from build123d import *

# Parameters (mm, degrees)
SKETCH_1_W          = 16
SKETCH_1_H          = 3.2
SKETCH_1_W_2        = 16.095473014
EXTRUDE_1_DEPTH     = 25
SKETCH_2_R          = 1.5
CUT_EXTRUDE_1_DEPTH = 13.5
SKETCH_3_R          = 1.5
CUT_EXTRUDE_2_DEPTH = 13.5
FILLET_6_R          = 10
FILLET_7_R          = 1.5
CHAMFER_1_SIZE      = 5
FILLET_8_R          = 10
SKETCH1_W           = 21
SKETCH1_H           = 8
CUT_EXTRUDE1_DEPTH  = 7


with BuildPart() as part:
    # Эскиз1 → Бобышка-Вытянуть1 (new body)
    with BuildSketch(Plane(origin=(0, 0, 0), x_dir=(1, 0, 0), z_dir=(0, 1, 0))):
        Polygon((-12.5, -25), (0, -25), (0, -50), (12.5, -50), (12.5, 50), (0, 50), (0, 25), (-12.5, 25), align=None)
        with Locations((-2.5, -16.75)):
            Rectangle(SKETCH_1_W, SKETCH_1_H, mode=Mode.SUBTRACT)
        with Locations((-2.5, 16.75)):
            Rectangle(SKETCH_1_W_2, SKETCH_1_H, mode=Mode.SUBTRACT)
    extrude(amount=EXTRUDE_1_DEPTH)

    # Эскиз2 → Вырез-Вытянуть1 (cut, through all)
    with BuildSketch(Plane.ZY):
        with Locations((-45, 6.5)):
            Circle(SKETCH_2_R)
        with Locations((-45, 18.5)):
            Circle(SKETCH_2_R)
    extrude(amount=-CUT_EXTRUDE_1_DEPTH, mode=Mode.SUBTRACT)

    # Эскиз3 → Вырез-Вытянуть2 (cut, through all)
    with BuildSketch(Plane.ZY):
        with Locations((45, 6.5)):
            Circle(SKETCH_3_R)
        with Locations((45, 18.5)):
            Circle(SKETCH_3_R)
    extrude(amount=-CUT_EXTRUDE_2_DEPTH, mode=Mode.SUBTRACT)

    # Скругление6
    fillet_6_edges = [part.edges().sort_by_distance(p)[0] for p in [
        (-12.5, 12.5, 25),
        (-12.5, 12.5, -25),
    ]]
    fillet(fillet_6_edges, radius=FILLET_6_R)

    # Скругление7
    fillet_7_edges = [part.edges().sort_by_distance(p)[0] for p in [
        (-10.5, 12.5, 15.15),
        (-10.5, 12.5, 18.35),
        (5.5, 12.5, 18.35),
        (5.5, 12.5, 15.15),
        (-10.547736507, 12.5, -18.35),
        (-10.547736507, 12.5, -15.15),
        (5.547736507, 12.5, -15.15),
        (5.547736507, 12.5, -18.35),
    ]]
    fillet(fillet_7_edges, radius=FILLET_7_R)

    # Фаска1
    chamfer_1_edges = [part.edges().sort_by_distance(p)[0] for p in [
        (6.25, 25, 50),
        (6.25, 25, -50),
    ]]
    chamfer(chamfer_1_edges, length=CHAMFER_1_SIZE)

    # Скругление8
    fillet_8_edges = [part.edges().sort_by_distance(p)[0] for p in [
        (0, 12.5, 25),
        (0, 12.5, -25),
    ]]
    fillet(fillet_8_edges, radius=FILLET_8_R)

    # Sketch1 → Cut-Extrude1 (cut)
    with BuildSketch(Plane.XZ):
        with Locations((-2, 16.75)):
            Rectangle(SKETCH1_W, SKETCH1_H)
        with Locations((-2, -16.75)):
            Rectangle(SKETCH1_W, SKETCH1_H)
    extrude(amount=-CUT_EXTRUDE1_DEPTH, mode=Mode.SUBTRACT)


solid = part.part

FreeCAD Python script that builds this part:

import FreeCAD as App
import Part
import Sketcher
from FreeCAD import Vector
Q = App.Units.Quantity


def edges_at(feature, points):
    """Names of the edges that pass closest to the given points."""
    edges = feature.Shape.Edges
    near = lambda p: min(range(len(edges)), key=lambda i: edges[i].distToShape(Part.Vertex(*p))[0])
    return sorted({f"Edge{near(p) + 1}" for p in points})

doc = App.newDocument("Part")
params = doc.addObject("Spreadsheet::Sheet", "Params")
for row, (alias, value) in enumerate([
    ("sketch1_width", "16 mm"),
    ("sketch1_height", "25 mm"),
    ("sketch1_height2", "100 mm"),
    ("sketch1_width2", "12.5 mm"),
    ("sketch1_height3", "3.2 mm"),
    ("pad1_length", "25 mm"),
    ("sketch2_diameter", "3 mm"),
    ("sketch3_diameter", "3 mm"),
    ("fillet_radius", "10 mm"),
    ("fillet2_radius", "1.5 mm"),
    ("chamfer_size", "5 mm"),
    ("fillet3_radius", "10 mm"),
    ("sketch4_width", "21 mm"),
    ("sketch4_height", "8 mm"),
    ("pocket3_length", "7 mm"),
], start=1):
    params.set(f"A{row}", alias)
    params.set(f"B{row}", "=" + value)
    params.setAlias(f"B{row}", alias)

body = doc.addObject("PartDesign::Body", "Body")

sketch1 = body.newObject("Sketcher::SketchObject", "Sketch")
sketch1.AttachmentSupport = (doc.getObject("XZ_Plane"), [""])
sketch1.MapMode = "FlatFace"
sketch1.addGeometry([
    Part.LineSegment(Vector(-12.5, 25, 0), Vector(0, 25, 0)),
    Part.LineSegment(Vector(0, 25, 0), Vector(0, 50, 0)),
    Part.LineSegment(Vector(0, 50, 0), Vector(12.5, 50, 0)),
    Part.LineSegment(Vector(12.5, 50, 0), Vector(12.5, -50, 0)),
    Part.LineSegment(Vector(12.5, -50, 0), Vector(0, -50, 0)),
    Part.LineSegment(Vector(0, -50, 0), Vector(0, -25, 0)),
    Part.LineSegment(Vector(0, -25, 0), Vector(-12.5, -25, 0)),
    Part.LineSegment(Vector(-12.5, -25, 0), Vector(-12.5, 25, 0)),
    Part.LineSegment(Vector(5.5, 18.4, 0), Vector(-10.5, 18.4, 0)),
    Part.LineSegment(Vector(-10.5, 18.4, 0), Vector(-10.5, 15.2, 0)),
    Part.LineSegment(Vector(-10.5, 15.2, 0), Vector(5.5, 15.2, 0)),
    Part.LineSegment(Vector(5.5, 15.2, 0), Vector(5.5, 18.4, 0)),
    Part.LineSegment(Vector(5.5, -15.2, 0), Vector(-10.5, -15.2, 0)),
    Part.LineSegment(Vector(-10.5, -15.2, 0), Vector(-10.5, -18.4, 0)),
    Part.LineSegment(Vector(-10.5, -18.4, 0), Vector(5.5, -18.4, 0)),
    Part.LineSegment(Vector(5.5, -18.4, 0), Vector(5.5, -15.2, 0)),
], False)
sketch1.addConstraint([
    Sketcher.Constraint("Coincident", 0, 2, 1, 1),
    Sketcher.Constraint("Coincident", 1, 2, 2, 1),
    Sketcher.Constraint("Coincident", 2, 2, 3, 1),
    Sketcher.Constraint("Coincident", 3, 2, 4, 1),
    Sketcher.Constraint("Coincident", 4, 2, 5, 1),
    Sketcher.Constraint("Coincident", 5, 2, 6, 1),
    Sketcher.Constraint("Coincident", 6, 2, 7, 1),
    Sketcher.Constraint("Coincident", 7, 2, 0, 1),
    Sketcher.Constraint("Coincident", 8, 2, 9, 1),
    Sketcher.Constraint("Coincident", 9, 2, 10, 1),
    Sketcher.Constraint("Coincident", 10, 2, 11, 1),
    Sketcher.Constraint("Coincident", 11, 2, 8, 1),
    Sketcher.Constraint("Coincident", 12, 2, 13, 1),
    Sketcher.Constraint("Coincident", 13, 2, 14, 1),
    Sketcher.Constraint("Coincident", 14, 2, 15, 1),
    Sketcher.Constraint("Coincident", 15, 2, 12, 1),
    Sketcher.Constraint("Horizontal", 0),
    Sketcher.Constraint("Vertical", 1),
    Sketcher.Constraint("Horizontal", 2),
    Sketcher.Constraint("Vertical", 3),
    Sketcher.Constraint("Horizontal", 4),
    Sketcher.Constraint("Vertical", 5),
    Sketcher.Constraint("Horizontal", 6),
    Sketcher.Constraint("Vertical", 7),
    Sketcher.Constraint("Horizontal", 8),
    Sketcher.Constraint("Vertical", 9),
    Sketcher.Constraint("Horizontal", 10),
    Sketcher.Constraint("Vertical", 11),
    Sketcher.Constraint("Horizontal", 12),
    Sketcher.Constraint("Vertical", 13),
    Sketcher.Constraint("Horizontal", 14),
    Sketcher.Constraint("Vertical", 15),
    Sketcher.Constraint("Symmetric", 1, 2, 4, 2, -1, 1),
    Sketcher.Constraint("Symmetric", 0, 2, 5, 2, -1),
    Sketcher.Constraint("Equal", 0, 2),
    Sketcher.Constraint("Equal", 11, 13),
    Sketcher.Constraint("DistanceX", 8, 2, 8, 1, Q("16 mm")),
    Sketcher.Constraint("DistanceY", 1, 1, 1, 2, Q("25 mm")),
    Sketcher.Constraint("DistanceY", 3, 2, 3, 1, Q("100 mm")),
    Sketcher.Constraint("DistanceX", 0, 1, 0, 2, Q("12.5 mm")),
    Sketcher.Constraint("DistanceY", 9, 2, 9, 1, Q("3.2 mm")),
    Sketcher.Constraint("DistanceX", 7, 2, 8, 2, Q("2 mm")),
    Sketcher.Constraint("DistanceY", 12, 2, 9, 2, Q("30.3 mm")),
    Sketcher.Constraint("DistanceY", -1, 1, 8, 2, Q("18.35 mm")),
    Sketcher.Constraint("DistanceX", 12, 2, 12, 1, Q("16.095473 mm")),
    Sketcher.Constraint("DistanceX", 12, 2, -1, 1, Q("10.547737 mm")),
])
sketch1.setExpression("Constraints[36]", "Params.sketch1_width")
sketch1.setExpression("Constraints[37]", "Params.sketch1_height")
sketch1.setExpression("Constraints[38]", "Params.sketch1_height2")
sketch1.setExpression("Constraints[39]", "Params.sketch1_width2")
sketch1.setExpression("Constraints[40]", "Params.sketch1_height3")
pad1 = body.newObject("PartDesign::Pad", "Pad")
pad1.Profile = sketch1
pad1.setExpression("Length", "Params.pad1_length")
pad1.Reversed = True

sketch2 = body.newObject("Sketcher::SketchObject", "Sketch001")
sketch2.AttachmentSupport = (doc.getObject("YZ_Plane"), [""])
sketch2.MapMode = "FlatFace"
sketch2.addGeometry([
    Part.Circle(Vector(6.5, -45, 0), Vector(0, 0, 1), 1.5),
    Part.Circle(Vector(18.5, -45, 0), Vector(0, 0, 1), 1.5),
], False)
sketch2.addConstraint([
    Sketcher.Constraint("Equal", 0, 1),
    Sketcher.Constraint("Horizontal", 0, 3, 1, 3),
    Sketcher.Constraint("Diameter", 0, Q("3 mm")),
    Sketcher.Constraint("DistanceY", 0, 3, -1, 1, Q("45 mm")),
    Sketcher.Constraint("DistanceX", 0, 3, 1, 3, Q("12 mm")),
    Sketcher.Constraint("DistanceX", -1, 1, 0, 3, Q("6.5 mm")),
])
sketch2.setExpression("Constraints[2]", "Params.sketch2_diameter")
pocket1 = body.newObject("PartDesign::Pocket", "Pocket")
pocket1.Profile = sketch2
pocket1.Type = "ThroughAll"
pocket1.Reversed = True

sketch3 = body.newObject("Sketcher::SketchObject", "Sketch002")
sketch3.AttachmentSupport = (doc.getObject("YZ_Plane"), [""])
sketch3.MapMode = "FlatFace"
sketch3.addGeometry([
    Part.Circle(Vector(6.5, 45, 0), Vector(0, 0, 1), 1.5),
    Part.Circle(Vector(18.5, 45, 0), Vector(0, 0, 1), 1.5),
], False)
sketch3.addConstraint([
    Sketcher.Constraint("Equal", 0, 1),
    Sketcher.Constraint("Horizontal", 0, 3, 1, 3),
    Sketcher.Constraint("Diameter", 0, Q("3 mm")),
    Sketcher.Constraint("DistanceY", -1, 1, 0, 3, Q("45 mm")),
    Sketcher.Constraint("DistanceX", 0, 3, 1, 3, Q("12 mm")),
    Sketcher.Constraint("DistanceX", -1, 1, 0, 3, Q("6.5 mm")),
])
sketch3.setExpression("Constraints[2]", "Params.sketch3_diameter")
pocket2 = body.newObject("PartDesign::Pocket", "Pocket001")
pocket2.Profile = sketch3
pocket2.Type = "ThroughAll"
pocket2.Reversed = True
doc.recompute()

fillet = body.newObject("PartDesign::Fillet", "Fillet")
fillet.Base = (pocket2, edges_at(pocket2, [(-12.5, 12.5, 25), (-12.5, 12.5, -25)]))
fillet.setExpression("Radius", "Params.fillet_radius")
doc.recompute()

fillet2 = body.newObject("PartDesign::Fillet", "Fillet001")
fillet2.Base = (fillet, edges_at(fillet, [
    (-10.5, 12.5, 15.15),
    (-10.5, 12.5, 18.35),
    (5.5, 12.5, 18.35),
    (5.5, 12.5, 15.15),
    (-10.548, 12.5, -18.35),
    (-10.548, 12.5, -15.15),
    (5.548, 12.5, -15.15),
    (5.548, 12.5, -18.35),
]))
fillet2.setExpression("Radius", "Params.fillet2_radius")
doc.recompute()

chamfer = body.newObject("PartDesign::Chamfer", "Chamfer")
chamfer.Base = (fillet2, edges_at(fillet2, [(6.25, 25, 50), (6.25, 25, -50)]))
chamfer.setExpression("Size", "Params.chamfer_size")
doc.recompute()

fillet3 = body.newObject("PartDesign::Fillet", "Fillet002")
fillet3.Base = (chamfer, edges_at(chamfer, [(0, 12.5, 25), (0, 12.5, -25)]))
fillet3.setExpression("Radius", "Params.fillet3_radius")

sketch4 = body.newObject("Sketcher::SketchObject", "Sketch003")
sketch4.AttachmentSupport = (doc.getObject("XZ_Plane"), [""])
sketch4.MapMode = "FlatFace"
sketch4.addGeometry([
    Part.LineSegment(Vector(-12, 21, 0), Vector(-12, 13, 0)),
    Part.LineSegment(Vector(-12, 13, 0), Vector(8, 13, 0)),
    Part.LineSegment(Vector(8, 13, 0), Vector(8, 21, 0)),
    Part.LineSegment(Vector(8, 21, 0), Vector(-12, 21, 0)),
    Part.LineSegment(Vector(-12, -13, 0), Vector(-12, -21, 0)),
    Part.LineSegment(Vector(-12, -21, 0), Vector(8, -21, 0)),
    Part.LineSegment(Vector(8, -21, 0), Vector(8, -13, 0)),
    Part.LineSegment(Vector(8, -13, 0), Vector(-12, -13, 0)),
], False)
sketch4.addConstraint([
    Sketcher.Constraint("Coincident", 0, 2, 1, 1),
    Sketcher.Constraint("Coincident", 1, 2, 2, 1),
    Sketcher.Constraint("Coincident", 2, 2, 3, 1),
    Sketcher.Constraint("Coincident", 3, 2, 0, 1),
    Sketcher.Constraint("Coincident", 4, 2, 5, 1),
    Sketcher.Constraint("Coincident", 5, 2, 6, 1),
    Sketcher.Constraint("Coincident", 6, 2, 7, 1),
    Sketcher.Constraint("Coincident", 7, 2, 4, 1),
    Sketcher.Constraint("Vertical", 0),
    Sketcher.Constraint("Horizontal", 1),
    Sketcher.Constraint("Vertical", 2),
    Sketcher.Constraint("Horizontal", 3),
    Sketcher.Constraint("Vertical", 4),
    Sketcher.Constraint("Horizontal", 5),
    Sketcher.Constraint("Vertical", 6),
    Sketcher.Constraint("Horizontal", 7),
    Sketcher.Constraint("Symmetric", 3, 2, 4, 2, -1),
    Sketcher.Constraint("Symmetric", 1, 2, 6, 2, -1),
    Sketcher.Constraint("DistanceX", 1, 1, 1, 2, Q("21 mm")),
    Sketcher.Constraint("DistanceY", 0, 2, 0, 1, Q("8 mm")),
    Sketcher.Constraint("DistanceX", 0, 2, -1, 1, Q("12.5 mm")),
    Sketcher.Constraint("DistanceY", 4, 2, 0, 2, Q("33.5 mm")),
])
sketch4.setExpression("Constraints[18]", "Params.sketch4_width")
sketch4.setExpression("Constraints[19]", "Params.sketch4_height")
pocket3 = body.newObject("PartDesign::Pocket", "Pocket002")
pocket3.Profile = sketch4
pocket3.setExpression("Length", "Params.pocket3_length")

doc.recompute()
